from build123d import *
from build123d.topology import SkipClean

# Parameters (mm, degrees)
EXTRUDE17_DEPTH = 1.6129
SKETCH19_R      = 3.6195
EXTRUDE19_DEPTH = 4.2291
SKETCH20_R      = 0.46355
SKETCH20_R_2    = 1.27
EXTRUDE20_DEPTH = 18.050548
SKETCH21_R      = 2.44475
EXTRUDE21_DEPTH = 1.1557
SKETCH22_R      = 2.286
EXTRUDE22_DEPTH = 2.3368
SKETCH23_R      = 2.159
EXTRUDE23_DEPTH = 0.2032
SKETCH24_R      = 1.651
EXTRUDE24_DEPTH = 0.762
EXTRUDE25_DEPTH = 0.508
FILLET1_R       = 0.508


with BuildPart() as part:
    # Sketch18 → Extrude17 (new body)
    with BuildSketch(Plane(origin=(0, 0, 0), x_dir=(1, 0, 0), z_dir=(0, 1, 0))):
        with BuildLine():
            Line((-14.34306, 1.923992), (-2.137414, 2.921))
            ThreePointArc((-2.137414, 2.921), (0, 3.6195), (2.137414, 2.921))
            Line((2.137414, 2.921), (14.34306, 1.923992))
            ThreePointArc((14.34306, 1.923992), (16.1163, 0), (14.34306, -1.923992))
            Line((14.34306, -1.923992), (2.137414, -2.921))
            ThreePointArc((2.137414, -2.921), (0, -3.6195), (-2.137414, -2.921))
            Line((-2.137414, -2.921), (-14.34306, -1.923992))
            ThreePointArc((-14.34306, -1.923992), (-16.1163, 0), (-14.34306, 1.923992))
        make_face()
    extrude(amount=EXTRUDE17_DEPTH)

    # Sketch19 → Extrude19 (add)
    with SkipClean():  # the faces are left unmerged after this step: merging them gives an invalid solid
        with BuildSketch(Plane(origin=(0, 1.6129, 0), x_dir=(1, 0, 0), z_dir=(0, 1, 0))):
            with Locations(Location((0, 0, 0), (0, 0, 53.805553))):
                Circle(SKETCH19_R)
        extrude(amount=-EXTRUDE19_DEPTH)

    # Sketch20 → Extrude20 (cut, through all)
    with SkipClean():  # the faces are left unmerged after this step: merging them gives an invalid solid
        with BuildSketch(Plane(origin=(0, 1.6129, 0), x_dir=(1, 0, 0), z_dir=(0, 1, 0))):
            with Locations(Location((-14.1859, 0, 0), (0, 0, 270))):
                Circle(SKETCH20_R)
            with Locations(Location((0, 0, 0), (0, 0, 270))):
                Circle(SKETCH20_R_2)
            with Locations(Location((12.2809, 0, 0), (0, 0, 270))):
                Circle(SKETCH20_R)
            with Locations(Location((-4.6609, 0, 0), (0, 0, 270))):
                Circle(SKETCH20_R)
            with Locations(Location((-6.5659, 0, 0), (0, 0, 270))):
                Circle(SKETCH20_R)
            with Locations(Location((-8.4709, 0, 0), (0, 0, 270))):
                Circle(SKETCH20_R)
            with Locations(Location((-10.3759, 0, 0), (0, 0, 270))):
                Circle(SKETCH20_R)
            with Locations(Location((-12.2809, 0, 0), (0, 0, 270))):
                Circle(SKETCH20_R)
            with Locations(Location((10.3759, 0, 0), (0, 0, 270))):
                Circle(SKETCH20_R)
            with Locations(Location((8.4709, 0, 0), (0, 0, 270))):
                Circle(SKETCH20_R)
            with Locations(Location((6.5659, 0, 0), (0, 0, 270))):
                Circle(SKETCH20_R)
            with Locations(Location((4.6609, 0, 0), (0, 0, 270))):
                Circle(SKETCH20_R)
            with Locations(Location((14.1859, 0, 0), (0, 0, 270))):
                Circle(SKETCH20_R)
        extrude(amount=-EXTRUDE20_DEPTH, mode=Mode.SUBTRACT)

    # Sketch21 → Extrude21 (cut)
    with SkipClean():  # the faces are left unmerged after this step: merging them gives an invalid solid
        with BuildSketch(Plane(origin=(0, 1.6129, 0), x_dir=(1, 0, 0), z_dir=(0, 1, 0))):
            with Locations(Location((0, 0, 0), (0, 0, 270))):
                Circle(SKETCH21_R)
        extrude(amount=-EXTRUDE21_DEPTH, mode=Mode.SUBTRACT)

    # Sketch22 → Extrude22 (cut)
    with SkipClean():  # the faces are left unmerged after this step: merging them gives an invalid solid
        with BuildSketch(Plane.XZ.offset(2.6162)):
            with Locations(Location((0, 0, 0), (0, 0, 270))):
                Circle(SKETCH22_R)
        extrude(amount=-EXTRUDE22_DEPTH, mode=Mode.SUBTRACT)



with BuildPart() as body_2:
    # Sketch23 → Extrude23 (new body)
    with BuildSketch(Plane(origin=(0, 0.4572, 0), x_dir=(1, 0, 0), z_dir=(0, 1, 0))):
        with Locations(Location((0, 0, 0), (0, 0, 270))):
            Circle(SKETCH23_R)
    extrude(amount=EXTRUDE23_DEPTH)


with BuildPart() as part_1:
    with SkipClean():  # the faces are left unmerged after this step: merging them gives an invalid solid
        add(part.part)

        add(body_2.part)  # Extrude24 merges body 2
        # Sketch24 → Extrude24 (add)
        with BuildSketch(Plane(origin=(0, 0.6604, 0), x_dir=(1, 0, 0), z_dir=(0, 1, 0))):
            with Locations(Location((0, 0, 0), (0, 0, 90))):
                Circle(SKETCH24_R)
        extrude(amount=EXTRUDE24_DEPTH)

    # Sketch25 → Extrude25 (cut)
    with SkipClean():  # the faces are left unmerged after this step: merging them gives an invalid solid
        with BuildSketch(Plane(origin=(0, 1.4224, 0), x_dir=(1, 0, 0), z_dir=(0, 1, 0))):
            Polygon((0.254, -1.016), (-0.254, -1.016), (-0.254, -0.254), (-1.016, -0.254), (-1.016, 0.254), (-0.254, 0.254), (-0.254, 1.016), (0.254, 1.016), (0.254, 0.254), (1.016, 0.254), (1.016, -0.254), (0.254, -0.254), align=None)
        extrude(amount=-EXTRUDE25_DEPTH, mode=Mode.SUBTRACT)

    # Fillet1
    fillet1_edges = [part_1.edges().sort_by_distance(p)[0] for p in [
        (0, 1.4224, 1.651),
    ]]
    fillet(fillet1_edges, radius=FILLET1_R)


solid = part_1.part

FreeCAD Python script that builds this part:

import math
import FreeCAD as App
import Part
import Sketcher
Q = App.Units.Quantity


def edges_at(feature, points):
    """Names of the edges that pass closest to the given points."""
    edges = feature.Shape.Edges
    near = lambda p: min(range(len(edges)), key=lambda i: edges[i].distToShape(Part.Vertex(*p))[0])
    return sorted({f"Edge{near(p) + 1}" for p in points})


def add_polygon(sketch, points):
    """Adds a closed chain of lines whose ends are joined by coincident constraints."""
    first, n = sketch.GeometryCount, len(points)
    for a, b in zip(points, points[1:] + points[:1]):
        sketch.addGeometry(Part.LineSegment(App.Vector(*a, 0), App.Vector(*b, 0)), False)
    for i in range(n):
        sketch.addConstraint(Sketcher.Constraint("Coincident", first + i, 2, first + (i + 1) % n, 1))

doc = App.newDocument("Part")
params = doc.addObject("Spreadsheet::Sheet", "Params")
for row, (alias, value) in enumerate([
    ("sketch1_radius", "0.076 in"),
    ("pad1_length", "0.0635 in"),
    ("sketch2_diameter", "0.285 in"),
    ("pad2_length", "0.1665 in"),
    ("sketch3_diameter", "0.1 in"),
    ("pocket2_length", "0.0455 in"),
    ("sketch5_diameter", "0.18 in"),
    ("pocket3_length", "0.092 in"),
    ("sketch6_diameter", "0.17 in"),
    ("pad3_length", "0.008 in"),
    ("sketch7_diameter", "0.13 in"),
    ("pad4_length", "0.03 in"),
    ("sketch8_width", "0.02 in"),
    ("sketch8_width2", "0.03 in"),
    ("pocket4_length", "0.02 in"),
    ("fillet_radius", "0.02 in"),
], start=1):
    params.set(f"A{row}", alias)
    params.set(f"B{row}", "=" + value)
    params.setAlias(f"B{row}", alias)

body = doc.addObject("PartDesign::Body", "Body")

sketch1 = body.newObject("Sketcher::SketchObject", "Sketch")
sketch1.AttachmentSupport = (doc.getObject("XZ_Plane"), [""])
sketch1.MapMode = "FlatFace"
sketch1.addGeometry(Part.LineSegment(App.Vector(-2.1, -2.9, 0), App.Vector(-14.3, -1.9, 0)), False)
sketch1.addGeometry(Part.ArcOfCircle(Part.Circle(App.Vector(-14.2, 0, 0), App.Vector(0, 0, 1), 1.9), math.radians(95), math.radians(265)), False)
sketch1.addGeometry(Part.LineSegment(App.Vector(-14.3, 1.9, 0), App.Vector(-2.1, 2.9, 0)), False)
sketch1.addGeometry(Part.ArcOfCircle(Part.Circle(App.Vector(0, 0, 0), App.Vector(0, 0, 1), 3.6), math.radians(54), math.radians(126)), False)
sketch1.addGeometry(Part.LineSegment(App.Vector(2.1, 2.9, 0), App.Vector(14.3, 1.9, 0)), False)
sketch1.addGeometry(Part.ArcOfCircle(Part.Circle(App.Vector(14.2, 0, 0), App.Vector(0, 0, 1), 1.9), math.radians(-85), math.radians(85)), False)
sketch1.addGeometry(Part.LineSegment(App.Vector(14.3, -1.9, 0), App.Vector(2.1, -2.9, 0)), False)
sketch1.addGeometry(Part.ArcOfCircle(Part.Circle(App.Vector(0, 0, 0), App.Vector(0, 0, 1), 3.6), math.radians(-126), math.radians(-54)), False)
sketch1.addConstraint(Sketcher.Constraint("Tangent", 0, 2, 1, 2))
sketch1.addConstraint(Sketcher.Constraint("Tangent", 1, 1, 2, 1))
sketch1.addConstraint(Sketcher.Constraint("Coincident", 2, 2, 3, 2))
sketch1.addConstraint(Sketcher.Constraint("Coincident", 3, 1, 4, 1))
sketch1.addConstraint(Sketcher.Constraint("Tangent", 4, 2, 5, 2))
sketch1.addConstraint(Sketcher.Constraint("Tangent", 5, 1, 6, 1))
sketch1.addConstraint(Sketcher.Constraint("Coincident", 6, 2, 7, 2))
sketch1.addConstraint(Sketcher.Constraint("Coincident", 7, 1, 0, 1))
sketch1.addConstraint(Sketcher.Constraint("Coincident", 3, 3, -1, 1))
sketch1.addConstraint(Sketcher.Constraint("Coincident", 7, 3, -1, 1))
sketch1.addConstraint(Sketcher.Constraint("Equal", 1, 5))
sketch1.addConstraint(Sketcher.Constraint("Equal", 3, 7))
sketch1.addConstraint(Sketcher.Constraint("Symmetric", 1, 3, 5, 3, -1, 1))
sketch1.addConstraint(Sketcher.Constraint("Symmetric", 1, 1, 4, 2, -2))
sketch1.addConstraint(Sketcher.Constraint("Parallel", 0, 4))
sketch1.addConstraint(Sketcher.Constraint("Parallel", 2, 6))
sketch1.addConstraint(Sketcher.Constraint("Radius", 1, Q("0.076 in")))
sketch1.addConstraint(Sketcher.Constraint("Radius", 3, Q("0.1425 in")))
sketch1.addConstraint(Sketcher.Constraint("DistanceY", 6, 2, 3, 1, Q("0.23 in")))
sketch1.addConstraint(Sketcher.Constraint("DistanceX", 1, 3, 5, 3, Q("1.117 in")))
sketch1.setExpression("Constraints[16]", "Params.sketch1_radius")
pad1 = body.newObject("PartDesign::Pad", "Pad")
pad1.Profile = sketch1
pad1.setExpression("Length", "Params.pad1_length")
pad1.Reversed = True

sketch2 = body.newObject("Sketcher::SketchObject", "Sketch001")
sketch2.AttachmentSupport = (doc.getObject("XZ_Plane"), [""])
sketch2.MapMode = "FlatFace"
sketch2.AttachmentOffset = App.Placement(App.Vector(0, 0, -0.0635 * 25.4), App.Rotation())
sketch2.addGeometry(Part.Circle(App.Vector(0, 0, 0), App.Vector(0, 0, 1), 3.6), False)
sketch2.addConstraint(Sketcher.Constraint("Coincident", 0, 3, -1, 1))
sketch2.addConstraint(Sketcher.Constraint("Diameter", 0, Q("0.285 in")))
sketch2.setExpression("Constraints[1]", "Params.sketch2_diameter")
pad2 = body.newObject("PartDesign::Pad", "Pad001")
pad2.Profile = sketch2
pad2.setExpression("Length", "Params.pad2_length")

sketch3 = body.newObject("Sketcher::SketchObject", "Sketch002")
sketch3.AttachmentSupport = (doc.getObject("XZ_Plane"), [""])
sketch3.MapMode = "FlatFace"
sketch3.AttachmentOffset = App.Placement(App.Vector(0, 0, -0.0635 * 25.4), App.Rotation())
sketch3.addGeometry(Part.Circle(App.Vector(-14.19, 0, 0), App.Vector(0, 0, 1), 0.46), False)
sketch3.addGeometry(Part.Circle(App.Vector(0, 0, 0), App.Vector(0, 0, 1), 1.27), False)
sketch3.addGeometry(Part.Circle(App.Vector(12.28, 0, 0), App.Vector(0, 0, 1), 0.46), False)
sketch3.addGeometry(Part.Circle(App.Vector(-4.66, 0, 0), App.Vector(0, 0, 1), 0.46), False)
sketch3.addGeometry(Part.Circle(App.Vector(-6.57, 0, 0), App.Vector(0, 0, 1), 0.46), False)
sketch3.addGeometry(Part.Circle(App.Vector(-8.47, 0, 0), App.Vector(0, 0, 1), 0.46), False)
sketch3.addGeometry(Part.Circle(App.Vector(-10.38, 0, 0), App.Vector(0, 0, 1), 0.46), False)
sketch3.addGeometry(Part.Circle(App.Vector(-12.28, 0, 0), App.Vector(0, 0, 1), 0.46), False)
sketch3.addGeometry(Part.Circle(App.Vector(10.38, 0, 0), App.Vector(0, 0, 1), 0.46), False)
sketch3.addGeometry(Part.Circle(App.Vector(8.47, 0, 0), App.Vector(0, 0, 1), 0.46), False)
sketch3.addGeometry(Part.Circle(App.Vector(6.57, 0, 0), App.Vector(0, 0, 1), 0.46), False)
sketch3.addGeometry(Part.Circle(App.Vector(4.66, 0, 0), App.Vector(0, 0, 1), 0.46), False)
sketch3.addGeometry(Part.Circle(App.Vector(14.19, 0, 0), App.Vector(0, 0, 1), 0.46), False)
sketch3.addConstraint(Sketcher.Constraint("Coincident", 1, 3, -1, 1))
sketch3.addConstraint(Sketcher.Constraint("Equal", 0, 2))
sketch3.addConstraint(Sketcher.Constraint("Equal", 2, 3))
sketch3.addConstraint(Sketcher.Constraint("Equal", 3, 4))
sketch3.addConstraint(Sketcher.Constraint("Equal", 4, 5))
sketch3.addConstraint(Sketcher.Constraint("Equal", 5, 6))
sketch3.addConstraint(Sketcher.Constraint("Equal", 6, 7))
sketch3.addConstraint(Sketcher.Constraint("Equal", 7, 8))
sketch3.addConstraint(Sketcher.Constraint("Equal", 8, 9))
sketch3.addConstraint(Sketcher.Constraint("Equal", 9, 10))
sketch3.addConstraint(Sketcher.Constraint("Equal", 10, 11))
sketch3.addConstraint(Sketcher.Constraint("Equal", 11, 12))
sketch3.addConstraint(Sketcher.Constraint("Symmetric", 2, 3, 7, 3, -1, 1))
sketch3.addConstraint(Sketcher.Constraint("Symmetric", 6, 3, 8, 3, -1, 1))
sketch3.addConstraint(Sketcher.Constraint("Symmetric", 5, 3, 9, 3, -1, 1))
sketch3.addConstraint(Sketcher.Constraint("Symmetric", 4, 3, 10, 3, -1, 1))
sketch3.addConstraint(Sketcher.Constraint("Symmetric", 3, 3, 11, 3, -1, 1))
sketch3.addConstraint(Sketcher.Constraint("Symmetric", 0, 3, 12, 3, -1, 1))
sketch3.addConstraint(Sketcher.Constraint("PointOnObject", 0, 3, -1))
sketch3.addConstraint(Sketcher.Constraint("PointOnObject", 2, 3, -1))
sketch3.addConstraint(Sketcher.Constraint("PointOnObject", 3, 3, -1))
sketch3.addConstraint(Sketcher.Constraint("PointOnObject", 4, 3, -1))
sketch3.addConstraint(Sketcher.Constraint("PointOnObject", 5, 3, -1))
sketch3.addConstraint(Sketcher.Constraint("PointOnObject", 6, 3, -1))
sketch3.addConstraint(Sketcher.Constraint("Diameter", 1, Q("0.1 in")))
sketch3.addConstraint(Sketcher.Constraint("Diameter", 0, Q("0.0365 in")))
sketch3.addConstraint(Sketcher.Constraint("DistanceX", 0, 3, 4, 3, Q("0.3 in")))
sketch3.addConstraint(Sketcher.Constraint("DistanceX", 7, 3, 3, 3, Q("0.3 in")))
sketch3.addConstraint(Sketcher.Constraint("DistanceX", 5, 3, 3, 3, Q("0.15 in")))
sketch3.addConstraint(Sketcher.Constraint("DistanceX", 6, 3, 4, 3, Q("0.15 in")))
sketch3.addConstraint(Sketcher.Constraint("DistanceX", 0, 3, 2, 3, Q("1.042 in")))
sketch3.addConstraint(Sketcher.Constraint("DistanceX", 0, 3, 3, 3, Q("0.375 in")))
sketch3.setExpression("Constraints[24]", "Params.sketch3_diameter")
pocket1 = body.newObject("PartDesign::Pocket", "Pocket")
pocket1.Profile = sketch3
pocket1.Type = "ThroughAll"
pocket1.Reversed = True

sketch4 = body.newObject("Sketcher::SketchObject", "Sketch003")
sketch4.AttachmentSupport = (doc.getObject("XZ_Plane"), [""])
sketch4.MapMode = "FlatFace"
sketch4.AttachmentOffset = App.Placement(App.Vector(0, 0, -0.0635 * 25.4), App.Rotation())
sketch4.addGeometry(Part.Circle(App.Vector(0, 0, 0), App.Vector(0, 0, 1), 2.4), False)
sketch4.addConstraint(Sketcher.Constraint("Coincident", 0, 3, -1, 1))
sketch4.addConstraint(Sketcher.Constraint("Diameter", 0, Q("0.1925 in")))
pocket2 = body.newObject("PartDesign::Pocket", "Pocket001")
pocket2.Profile = sketch4
pocket2.setExpression("Length", "Params.pocket2_length")
pocket2.Reversed = True

sketch5 = body.newObject("Sketcher::SketchObject", "Sketch004")
sketch5.AttachmentSupport = (doc.getObject("XZ_Plane"), [""])
sketch5.MapMode = "FlatFace"
sketch5.AttachmentOffset = App.Placement(App.Vector(0, 0, 0.103 * 25.4), App.Rotation())
sketch5.addGeometry(Part.Circle(App.Vector(0, 0, 0), App.Vector(0, 0, 1), 2.3), False)
sketch5.addConstraint(Sketcher.Constraint("Coincident", 0, 3, -1, 1))
sketch5.addConstraint(Sketcher.Constraint("Diameter", 0, Q("0.18 in")))
sketch5.setExpression("Constraints[1]", "Params.sketch5_diameter")
pocket3 = body.newObject("PartDesign::Pocket", "Pocket002")
pocket3.Profile = sketch5
pocket3.setExpression("Length", "Params.pocket3_length")
body2 = doc.addObject("PartDesign::Body", "Body001")

sketch6 = body2.newObject("Sketcher::SketchObject", "Sketch005")
sketch6.AttachmentSupport = (doc.getObject("XZ_Plane001"), [""])
sketch6.MapMode = "FlatFace"
sketch6.AttachmentOffset = App.Placement(App.Vector(0, 0, -0.018 * 25.4), App.Rotation())
sketch6.addGeometry(Part.Circle(App.Vector(0, 0, 0), App.Vector(0, 0, 1), 2.2), False)
sketch6.addConstraint(Sketcher.Constraint("Coincident", 0, 3, -1, 1))
sketch6.addConstraint(Sketcher.Constraint("Diameter", 0, Q("0.17 in")))
sketch6.setExpression("Constraints[1]", "Params.sketch6_diameter")
pad3 = body2.newObject("PartDesign::Pad", "Pad002")
pad3.Profile = sketch6
pad3.setExpression("Length", "Params.pad3_length")
pad3.Reversed = True
doc.recompute()

boolean = body.newObject("PartDesign::Boolean", "Boolean")
boolean.Type = "Fuse"
boolean.addObjects([body2])

sketch7 = body.newObject("Sketcher::SketchObject", "Sketch006")
sketch7.AttachmentSupport = (doc.getObject("XZ_Plane"), [""])
sketch7.MapMode = "FlatFace"
sketch7.AttachmentOffset = App.Placement(App.Vector(0, 0, -0.026 * 25.4), App.Rotation())
sketch7.addGeometry(Part.Circle(App.Vector(0, 0, 0), App.Vector(0, 0, 1), 1.7), False)
sketch7.addConstraint(Sketcher.Constraint("Coincident", 0, 3, -1, 1))
sketch7.addConstraint(Sketcher.Constraint("Diameter", 0, Q("0.13 in")))
sketch7.setExpression("Constraints[1]", "Params.sketch7_diameter")
pad4 = body.newObject("PartDesign::Pad", "Pad003")
pad4.Profile = sketch7
pad4.setExpression("Length", "Params.pad4_length")
pad4.Reversed = True

sketch8 = body.newObject("Sketcher::SketchObject", "Sketch007")
sketch8.AttachmentSupport = (doc.getObject("XZ_Plane"), [""])
sketch8.MapMode = "FlatFace"
sketch8.AttachmentOffset = App.Placement(App.Vector(0, 0, -0.056 * 25.4), App.Rotation())
add_polygon(sketch8, [(-0.3, 1), (0.3, 1), (0.3, 0.3), (1, 0.3), (1, -0.3), (0.3, -0.3), (0.3, -1), (-0.3, -1), (-0.3, -0.3), (-1, -0.3), (-1, 0.3), (-0.3, 0.3)])
sketch8.addConstraint(Sketcher.Constraint("Horizontal", 0))
sketch8.addConstraint(Sketcher.Constraint("Vertical", 1))
sketch8.addConstraint(Sketcher.Constraint("Horizontal", 2))
sketch8.addConstraint(Sketcher.Constraint("Vertical", 3))
sketch8.addConstraint(Sketcher.Constraint("Horizontal", 4))
sketch8.addConstraint(Sketcher.Constraint("Vertical", 5))
sketch8.addConstraint(Sketcher.Constraint("Horizontal", 6))
sketch8.addConstraint(Sketcher.Constraint("Vertical", 7))
sketch8.addConstraint(Sketcher.Constraint("Horizontal", 8))
sketch8.addConstraint(Sketcher.Constraint("Vertical", 9))
sketch8.addConstraint(Sketcher.Constraint("Horizontal", 10))
sketch8.addConstraint(Sketcher.Constraint("Vertical", 11))
sketch8.addConstraint(Sketcher.Constraint("Symmetric", 0, 2, 6, 2, -1, 1))
sketch8.addConstraint(Sketcher.Constraint("Symmetric", 2, 2, 8, 2, -1, 1))
sketch8.addConstraint(Sketcher.Constraint("Symmetric", 4, 2, 10, 2, -1, 1))
sketch8.addConstraint(Sketcher.Constraint("Symmetric", 4, 2, 7, 2, -2))
sketch8.addConstraint(Sketcher.Constraint("Equal", 10, 1))
sketch8.addConstraint(Sketcher.Constraint("Equal", 6, 3))
sketch8.addConstraint(Sketcher.Constraint("DistanceX", 0, 1, 0, 2, Q("0.02 in")))
sketch8.addConstraint(Sketcher.Constraint("DistanceX", 2, 1, 2, 2, Q("0.03 in")))
sketch8.setExpression("Constraints[30]", "Params.sketch8_width")
sketch8.setExpression("Constraints[31]", "Params.sketch8_width2")
pocket4 = body.newObject("PartDesign::Pocket", "Pocket003")
pocket4.Profile = sketch8
pocket4.setExpression("Length", "Params.pocket4_length")
pocket4.Reversed = True
doc.recompute()

fillet = body.newObject("PartDesign::Fillet", "Fillet")
fillet.Base = (pocket4, edges_at(pocket4, [(0, 1.422, 1.651)]))
fillet.setExpression("Radius", "Params.fillet_radius")

doc.recompute()
